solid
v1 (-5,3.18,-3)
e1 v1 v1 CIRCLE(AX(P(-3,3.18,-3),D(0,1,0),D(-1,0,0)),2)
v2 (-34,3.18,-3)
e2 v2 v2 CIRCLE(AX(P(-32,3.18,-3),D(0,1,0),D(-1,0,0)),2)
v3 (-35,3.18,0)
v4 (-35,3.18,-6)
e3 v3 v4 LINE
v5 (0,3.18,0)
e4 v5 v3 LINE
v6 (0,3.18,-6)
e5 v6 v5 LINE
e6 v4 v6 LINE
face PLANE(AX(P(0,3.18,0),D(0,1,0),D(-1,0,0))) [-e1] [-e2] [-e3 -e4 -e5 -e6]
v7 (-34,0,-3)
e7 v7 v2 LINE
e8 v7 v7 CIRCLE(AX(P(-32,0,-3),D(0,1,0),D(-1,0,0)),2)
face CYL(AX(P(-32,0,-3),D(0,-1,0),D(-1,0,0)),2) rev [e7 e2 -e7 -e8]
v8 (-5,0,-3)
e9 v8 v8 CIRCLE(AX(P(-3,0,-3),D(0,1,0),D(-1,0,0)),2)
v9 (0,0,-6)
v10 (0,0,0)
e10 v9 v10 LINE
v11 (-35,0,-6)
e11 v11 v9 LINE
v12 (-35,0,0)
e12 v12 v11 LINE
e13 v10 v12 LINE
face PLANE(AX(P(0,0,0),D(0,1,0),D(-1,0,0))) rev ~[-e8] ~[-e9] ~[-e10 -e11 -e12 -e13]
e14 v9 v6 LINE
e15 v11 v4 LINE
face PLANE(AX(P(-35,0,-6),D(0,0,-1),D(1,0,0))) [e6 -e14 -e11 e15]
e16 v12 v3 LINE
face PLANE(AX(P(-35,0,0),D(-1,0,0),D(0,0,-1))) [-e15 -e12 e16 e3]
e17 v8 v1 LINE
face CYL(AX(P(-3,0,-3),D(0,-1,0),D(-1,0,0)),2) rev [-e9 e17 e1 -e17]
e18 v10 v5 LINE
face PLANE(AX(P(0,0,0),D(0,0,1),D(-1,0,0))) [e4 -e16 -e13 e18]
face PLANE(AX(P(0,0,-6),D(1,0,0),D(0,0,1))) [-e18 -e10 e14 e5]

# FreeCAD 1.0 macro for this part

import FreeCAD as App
import Part
import Sketcher
from FreeCAD import Vector
Q = App.Units.Quantity


def add_polygon(sketch, points):
    """Adds a closed chain of lines whose ends are joined by coincident constraints."""
    first, n = sketch.GeometryCount, len(points)
    for a, b in zip(points, points[1:] + points[:1]):
        sketch.addGeometry(Part.LineSegment(App.Vector(*a, 0), App.Vector(*b, 0)), False)
    for i in range(n):
        sketch.addConstraint(Sketcher.Constraint("Coincident", first + i, 2, first + (i + 1) % n, 1))

doc = App.newDocument("Part")
params = doc.addObject("Spreadsheet::Sheet", "Params")
for row, (alias, value) in enumerate([
    ("sketch1_diameter", "4 mm"),
    ("sketch1_width", "35 mm"),
    ("sketch1_height", "6 mm"),
    ("pad1_length", "3.18 mm"),
], start=1):
    params.set(f"A{row}", alias)
    params.set(f"B{row}", "=" + value)
    params.setAlias(f"B{row}", alias)

body = doc.addObject("PartDesign::Body", "Body")

# Sketch on XZ plane
sketch1 = body.newObject("Sketcher::SketchObject", "Sketch")
sketch1.AttachmentSupport = (doc.getObject("XZ_Plane"), [""])
sketch1.MapMode = "FlatFace"
add_polygon(sketch1, [(-35, 0), (0, 0), (0, -6), (-35, -6)])  # lines 0-3
sketch1.addGeometry(Part.Circle(Vector(-3, -3, 0), Vector(0, 0, 1), 2), False)  # 4
sketch1.addGeometry(Part.Circle(Vector(-32, -3, 0), Vector(0, 0, 1), 2), False)  # 5
sketch1.addConstraint(Sketcher.Constraint("Horizontal", 0))
sketch1.addConstraint(Sketcher.Constraint("Vertical", 1))
sketch1.addConstraint(Sketcher.Constraint("Horizontal", 2))
sketch1.addConstraint(Sketcher.Constraint("Vertical", 3))
sketch1.addConstraint(Sketcher.Constraint("Coincident", 0, 2, -1, 1))
sketch1.addConstraint(Sketcher.Constraint("Equal", 4, 5))
sketch1.addConstraint(Sketcher.Constraint("Horizontal", 4, 3, 5, 3))
sketch1.addConstraint(Sketcher.Constraint("Diameter", 4, Q("4 mm")))
sketch1.addConstraint(Sketcher.Constraint("DistanceX", 0, 1, 0, 2, Q("35 mm")))
sketch1.addConstraint(Sketcher.Constraint("DistanceY", 1, 2, 1, 1, Q("6 mm")))
sketch1.addConstraint(Sketcher.Constraint("DistanceX", 4, 3, -1, 1, Q("3 mm")))
sketch1.addConstraint(Sketcher.Constraint("DistanceY", 4, 3, -1, 1, Q("3 mm")))
sketch1.addConstraint(Sketcher.Constraint("DistanceX", 2, 2, 5, 3, Q("3 mm")))
sketch1.setExpression("Constraints[11]", "Params.sketch1_diameter")
sketch1.setExpression("Constraints[12]", "Params.sketch1_width")
sketch1.setExpression("Constraints[13]", "Params.sketch1_height")
pad1 = body.newObject("PartDesign::Pad", "Pad")
pad1.Profile = sketch1
pad1.setExpression("Length", "Params.pad1_length")
pad1.Reversed = True

doc.recompute()
